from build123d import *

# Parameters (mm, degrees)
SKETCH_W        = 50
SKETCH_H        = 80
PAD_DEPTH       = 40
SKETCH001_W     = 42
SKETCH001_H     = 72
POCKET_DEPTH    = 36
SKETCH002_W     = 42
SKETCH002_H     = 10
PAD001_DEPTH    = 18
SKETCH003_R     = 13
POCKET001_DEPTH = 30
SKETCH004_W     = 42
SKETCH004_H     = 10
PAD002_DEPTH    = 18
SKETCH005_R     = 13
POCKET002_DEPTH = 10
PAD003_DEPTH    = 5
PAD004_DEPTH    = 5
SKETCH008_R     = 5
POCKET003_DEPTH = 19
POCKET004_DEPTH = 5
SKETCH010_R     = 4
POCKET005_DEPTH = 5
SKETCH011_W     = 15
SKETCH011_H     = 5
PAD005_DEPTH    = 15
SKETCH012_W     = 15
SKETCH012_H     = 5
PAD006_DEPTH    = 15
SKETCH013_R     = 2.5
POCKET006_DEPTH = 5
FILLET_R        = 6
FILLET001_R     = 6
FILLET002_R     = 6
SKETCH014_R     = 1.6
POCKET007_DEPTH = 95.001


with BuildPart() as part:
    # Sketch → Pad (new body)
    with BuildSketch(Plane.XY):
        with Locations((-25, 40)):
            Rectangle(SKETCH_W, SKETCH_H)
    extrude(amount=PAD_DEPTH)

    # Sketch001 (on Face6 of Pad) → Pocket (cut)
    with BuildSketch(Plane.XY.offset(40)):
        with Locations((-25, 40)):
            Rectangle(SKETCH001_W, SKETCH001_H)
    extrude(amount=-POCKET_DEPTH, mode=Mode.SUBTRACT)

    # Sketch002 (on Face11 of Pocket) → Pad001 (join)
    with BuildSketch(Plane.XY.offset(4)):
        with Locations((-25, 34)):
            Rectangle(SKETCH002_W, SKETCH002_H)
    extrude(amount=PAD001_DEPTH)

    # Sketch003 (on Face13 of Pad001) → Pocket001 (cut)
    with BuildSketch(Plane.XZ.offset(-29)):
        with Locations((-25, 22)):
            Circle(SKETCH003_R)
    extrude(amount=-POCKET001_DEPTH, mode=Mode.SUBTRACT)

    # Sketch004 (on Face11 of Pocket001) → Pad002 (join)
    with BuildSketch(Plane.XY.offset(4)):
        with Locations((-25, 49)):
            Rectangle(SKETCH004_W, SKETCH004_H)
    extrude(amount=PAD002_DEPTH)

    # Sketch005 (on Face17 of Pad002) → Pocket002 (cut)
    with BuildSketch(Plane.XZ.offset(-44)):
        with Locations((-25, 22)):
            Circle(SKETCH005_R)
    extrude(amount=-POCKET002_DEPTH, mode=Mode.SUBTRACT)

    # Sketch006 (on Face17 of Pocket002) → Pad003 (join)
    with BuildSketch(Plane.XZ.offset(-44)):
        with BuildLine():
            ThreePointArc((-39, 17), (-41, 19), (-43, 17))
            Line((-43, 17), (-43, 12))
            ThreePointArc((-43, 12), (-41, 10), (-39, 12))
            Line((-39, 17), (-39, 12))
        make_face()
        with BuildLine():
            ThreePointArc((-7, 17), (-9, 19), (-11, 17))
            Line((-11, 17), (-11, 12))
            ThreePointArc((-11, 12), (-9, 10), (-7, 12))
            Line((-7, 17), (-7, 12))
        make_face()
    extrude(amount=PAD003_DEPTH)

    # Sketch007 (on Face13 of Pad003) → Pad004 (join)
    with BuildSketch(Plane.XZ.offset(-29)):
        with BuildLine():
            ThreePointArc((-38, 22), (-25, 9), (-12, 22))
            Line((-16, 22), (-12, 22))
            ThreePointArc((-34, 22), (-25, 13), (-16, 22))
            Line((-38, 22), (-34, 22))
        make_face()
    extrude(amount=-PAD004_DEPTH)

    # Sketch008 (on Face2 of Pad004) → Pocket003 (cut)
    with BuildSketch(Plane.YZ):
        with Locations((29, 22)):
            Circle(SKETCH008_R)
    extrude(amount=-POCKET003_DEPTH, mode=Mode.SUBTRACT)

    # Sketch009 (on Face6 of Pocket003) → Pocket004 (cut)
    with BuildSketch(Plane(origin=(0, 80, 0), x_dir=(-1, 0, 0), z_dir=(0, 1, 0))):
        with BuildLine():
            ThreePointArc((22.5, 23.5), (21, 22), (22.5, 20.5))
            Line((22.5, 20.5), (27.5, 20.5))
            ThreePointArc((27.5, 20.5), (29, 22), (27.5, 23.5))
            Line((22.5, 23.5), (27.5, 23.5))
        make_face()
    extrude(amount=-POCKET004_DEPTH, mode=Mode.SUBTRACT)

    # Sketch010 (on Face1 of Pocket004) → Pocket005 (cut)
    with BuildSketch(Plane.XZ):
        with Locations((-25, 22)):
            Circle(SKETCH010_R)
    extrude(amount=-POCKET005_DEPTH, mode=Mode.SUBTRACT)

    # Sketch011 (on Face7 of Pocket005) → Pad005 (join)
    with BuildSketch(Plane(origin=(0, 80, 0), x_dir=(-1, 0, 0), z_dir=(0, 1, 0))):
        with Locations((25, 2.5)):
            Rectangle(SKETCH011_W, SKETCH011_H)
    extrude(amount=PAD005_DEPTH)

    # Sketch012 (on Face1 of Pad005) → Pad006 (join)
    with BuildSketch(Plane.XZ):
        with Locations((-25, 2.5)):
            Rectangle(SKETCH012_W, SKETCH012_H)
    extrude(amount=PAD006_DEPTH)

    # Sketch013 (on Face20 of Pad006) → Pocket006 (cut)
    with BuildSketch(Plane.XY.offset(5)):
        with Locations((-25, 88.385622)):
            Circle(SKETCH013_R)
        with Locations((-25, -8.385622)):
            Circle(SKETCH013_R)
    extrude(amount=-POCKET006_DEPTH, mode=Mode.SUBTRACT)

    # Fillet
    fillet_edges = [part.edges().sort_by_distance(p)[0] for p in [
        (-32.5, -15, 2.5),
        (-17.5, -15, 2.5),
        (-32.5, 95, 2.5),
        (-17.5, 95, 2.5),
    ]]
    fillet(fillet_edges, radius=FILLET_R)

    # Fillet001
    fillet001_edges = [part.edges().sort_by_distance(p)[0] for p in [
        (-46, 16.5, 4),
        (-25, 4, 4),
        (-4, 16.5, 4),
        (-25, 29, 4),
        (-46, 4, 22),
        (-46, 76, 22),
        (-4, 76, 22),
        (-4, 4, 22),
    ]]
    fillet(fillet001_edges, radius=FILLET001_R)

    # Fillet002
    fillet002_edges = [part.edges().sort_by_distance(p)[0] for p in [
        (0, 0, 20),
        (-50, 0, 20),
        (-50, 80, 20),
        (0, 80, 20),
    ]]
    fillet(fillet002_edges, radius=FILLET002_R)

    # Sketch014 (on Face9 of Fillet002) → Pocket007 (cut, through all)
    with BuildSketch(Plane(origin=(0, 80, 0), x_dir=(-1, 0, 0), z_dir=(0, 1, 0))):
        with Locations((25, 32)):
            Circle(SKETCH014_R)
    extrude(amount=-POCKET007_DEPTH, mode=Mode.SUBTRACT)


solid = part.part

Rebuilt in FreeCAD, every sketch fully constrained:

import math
import FreeCAD as App
import Part
import Sketcher

V = App.Vector


def edges_at(feature, points):
    """Names of the edges that pass closest to the given points."""
    edges = feature.Shape.Edges
    near = lambda p: min(range(len(edges)), key=lambda i: edges[i].distToShape(Part.Vertex(*p))[0])
    return sorted({f"Edge{near(p) + 1}" for p in points})

doc = App.newDocument("Part")
body = doc.addObject("PartDesign::Body", "Body")

# Sketch on XY plane
sketch1 = doc.addObject("Sketcher::SketchObject", "Sketch")
body.addObject(sketch1)
sketch1.AttachmentSupport = (doc.XY_Plane, [""])
sketch1.MapMode = "FlatFace"
sketch1.addGeometry([
    Part.LineSegment(V(-50, 80, 0), V(-50, 0, 0)),
    Part.LineSegment(V(-50, 0, 0), V(0, 0, 0)),
    Part.LineSegment(V(0, 0, 0), V(0, 80, 0)),
    Part.LineSegment(V(0, 80, 0), V(-50, 80, 0)),
], False)
sketch1.addConstraint([
    Sketcher.Constraint("Coincident", 0, 2, 1, 1),
    Sketcher.Constraint("Coincident", 1, 2, 2, 1),
    Sketcher.Constraint("Coincident", 2, 2, 3, 1),
    Sketcher.Constraint("Coincident", 3, 2, 0, 1),
    Sketcher.Constraint("Vertical", 0),
    Sketcher.Constraint("Horizontal", 1),
    Sketcher.Constraint("Vertical", 2),
    Sketcher.Constraint("Horizontal", 3),
    Sketcher.Constraint("Coincident", 1, 2, -1, 1),
    Sketcher.Constraint("DistanceX", 1, 1, 1, 2, 50.0),
    Sketcher.Constraint("DistanceY", 0, 2, 0, 1, 80.0),
])
pad1 = doc.addObject("PartDesign::Pad", "Pad")
body.addObject(pad1)
pad1.Profile = sketch1
pad1.Length = 40

# Sketch on XY plane
sketch2 = doc.addObject("Sketcher::SketchObject", "Sketch001")
body.addObject(sketch2)
sketch2.AttachmentSupport = (doc.XY_Plane, [""])
sketch2.MapMode = "FlatFace"
sketch2.AttachmentOffset = App.Placement(V(0, 0, 40), App.Rotation())
sketch2.addGeometry([
    Part.LineSegment(V(-46, 76, 0), V(-46, 4, 0)),
    Part.LineSegment(V(-46, 4, 0), V(-4, 4, 0)),
    Part.LineSegment(V(-4, 4, 0), V(-4, 76, 0)),
    Part.LineSegment(V(-4, 76, 0), V(-46, 76, 0)),
], False)
sketch2.addConstraint([
    Sketcher.Constraint("Coincident", 0, 2, 1, 1),
    Sketcher.Constraint("Coincident", 1, 2, 2, 1),
    Sketcher.Constraint("Coincident", 2, 2, 3, 1),
    Sketcher.Constraint("Coincident", 3, 2, 0, 1),
    Sketcher.Constraint("Vertical", 0),
    Sketcher.Constraint("Horizontal", 1),
    Sketcher.Constraint("Vertical", 2),
    Sketcher.Constraint("Horizontal", 3),
    Sketcher.Constraint("DistanceX", 1, 1, 1, 2, 42.0),
    Sketcher.Constraint("DistanceY", 0, 2, 0, 1, 72.0),
    Sketcher.Constraint("DistanceX", 0, 2, -1, 1, 46.0),
    Sketcher.Constraint("DistanceY", -1, 1, 0, 2, 4.0),
])
pocket1 = doc.addObject("PartDesign::Pocket", "Pocket")
body.addObject(pocket1)
pocket1.Profile = sketch2
pocket1.Length = 36

# Sketch on XY plane
sketch3 = doc.addObject("Sketcher::SketchObject", "Sketch002")
body.addObject(sketch3)
sketch3.AttachmentSupport = (doc.XY_Plane, [""])
sketch3.MapMode = "FlatFace"
sketch3.AttachmentOffset = App.Placement(V(0, 0, 4), App.Rotation())
sketch3.addGeometry([
    Part.LineSegment(V(-46, 39, 0), V(-46, 29, 0)),
    Part.LineSegment(V(-46, 29, 0), V(-4, 29, 0)),
    Part.LineSegment(V(-4, 29, 0), V(-4, 39, 0)),
    Part.LineSegment(V(-4, 39, 0), V(-46, 39, 0)),
], False)
sketch3.addConstraint([
    Sketcher.Constraint("Coincident", 0, 2, 1, 1),
    Sketcher.Constraint("Coincident", 1, 2, 2, 1),
    Sketcher.Constraint("Coincident", 2, 2, 3, 1),
    Sketcher.Constraint("Coincident", 3, 2, 0, 1),
    Sketcher.Constraint("Vertical", 0),
    Sketcher.Constraint("Horizontal", 1),
    Sketcher.Constraint("Vertical", 2),
    Sketcher.Constraint("Horizontal", 3),
    Sketcher.Constraint("DistanceX", 1, 1, 1, 2, 42.0),
    Sketcher.Constraint("DistanceY", 0, 2, 0, 1, 10.0),
    Sketcher.Constraint("DistanceX", 0, 2, -1, 1, 46.0),
    Sketcher.Constraint("DistanceY", -1, 1, 0, 2, 29.0),
])
pad2 = doc.addObject("PartDesign::Pad", "Pad001")
body.addObject(pad2)
pad2.Profile = sketch3
pad2.Length = 18

# Sketch on XZ plane
sketch4 = doc.addObject("Sketcher::SketchObject", "Sketch003")
body.addObject(sketch4)
sketch4.AttachmentSupport = (doc.XZ_Plane, [""])
sketch4.MapMode = "FlatFace"
sketch4.AttachmentOffset = App.Placement(V(0, 0, -29), App.Rotation())
sketch4.addGeometry(Part.Circle(V(-25, 22, 0), V(0, 0, 1), 13), False)
sketch4.addConstraint([
    Sketcher.Constraint("Diameter", 0, 26.0),
    Sketcher.Constraint("DistanceX", 0, 3, -1, 1, 25.0),
    Sketcher.Constraint("DistanceY", -1, 1, 0, 3, 22.0),
])
pocket2 = doc.addObject("PartDesign::Pocket", "Pocket001")
body.addObject(pocket2)
pocket2.Profile = sketch4
pocket2.Length = 30

# Sketch on XY plane
sketch5 = doc.addObject("Sketcher::SketchObject", "Sketch004")
body.addObject(sketch5)
sketch5.AttachmentSupport = (doc.XY_Plane, [""])
sketch5.MapMode = "FlatFace"
sketch5.AttachmentOffset = App.Placement(V(0, 0, 4), App.Rotation())
sketch5.addGeometry([
    Part.LineSegment(V(-46, 54, 0), V(-46, 44, 0)),
    Part.LineSegment(V(-46, 44, 0), V(-4, 44, 0)),
    Part.LineSegment(V(-4, 44, 0), V(-4, 54, 0)),
    Part.LineSegment(V(-4, 54, 0), V(-46, 54, 0)),
], False)
sketch5.addConstraint([
    Sketcher.Constraint("Coincident", 0, 2, 1, 1),
    Sketcher.Constraint("Coincident", 1, 2, 2, 1),
    Sketcher.Constraint("Coincident", 2, 2, 3, 1),
    Sketcher.Constraint("Coincident", 3, 2, 0, 1),
    Sketcher.Constraint("Vertical", 0),
    Sketcher.Constraint("Horizontal", 1),
    Sketcher.Constraint("Vertical", 2),
    Sketcher.Constraint("Horizontal", 3),
    Sketcher.Constraint("DistanceX", 1, 1, 1, 2, 42.0),
    Sketcher.Constraint("DistanceY", 0, 2, 0, 1, 10.0),
    Sketcher.Constraint("DistanceX", 0, 2, -1, 1, 46.0),
    Sketcher.Constraint("DistanceY", -1, 1, 0, 2, 44.0),
])
pad3 = doc.addObject("PartDesign::Pad", "Pad002")
body.addObject(pad3)
pad3.Profile = sketch5
pad3.Length = 18

# Sketch on XZ plane
sketch6 = doc.addObject("Sketcher::SketchObject", "Sketch005")
body.addObject(sketch6)
sketch6.AttachmentSupport = (doc.XZ_Plane, [""])
sketch6.MapMode = "FlatFace"
sketch6.AttachmentOffset = App.Placement(V(0, 0, -44), App.Rotation())
sketch6.addGeometry(Part.Circle(V(-25, 22, 0), V(0, 0, 1), 13), False)
sketch6.addConstraint([
    Sketcher.Constraint("Diameter", 0, 26.0),
    Sketcher.Constraint("DistanceX", 0, 3, -1, 1, 25.0),
    Sketcher.Constraint("DistanceY", -1, 1, 0, 3, 22.0),
])
pocket3 = doc.addObject("PartDesign::Pocket", "Pocket002")
body.addObject(pocket3)
pocket3.Profile = sketch6
pocket3.Length = 10

# Sketch on XZ plane
sketch7 = doc.addObject("Sketcher::SketchObject", "Sketch006")
body.addObject(sketch7)
sketch7.AttachmentSupport = (doc.XZ_Plane, [""])
sketch7.MapMode = "FlatFace"
sketch7.AttachmentOffset = App.Placement(V(0, 0, -44), App.Rotation())
sketch7.addGeometry([
    Part.ArcOfCircle(Part.Circle(V(-41, 17, 0), V(0, 0, 1), 2), math.radians(0), math.radians(180)),  # 0
    Part.LineSegment(V(-43, 17, 0), V(-43, 12, 0)),  # 1
    Part.ArcOfCircle(Part.Circle(V(-41, 12, 0), V(0, 0, 1), 2), math.radians(180), math.radians(360)),  # 2
    Part.LineSegment(V(-39, 12, 0), V(-39, 17, 0)),  # 3
    Part.ArcOfCircle(Part.Circle(V(-9, 17, 0), V(0, 0, 1), 2), math.radians(0), math.radians(180)),  # 4
    Part.LineSegment(V(-11, 17, 0), V(-11, 12, 0)),  # 5
    Part.ArcOfCircle(Part.Circle(V(-9, 12, 0), V(0, 0, 1), 2), math.radians(180), math.radians(360)),  # 6
    Part.LineSegment(V(-7, 12, 0), V(-7, 17, 0)),  # 7
], False)
sketch7.addConstraint([
    Sketcher.Constraint("Tangent", 0, 2, 1, 1),
    Sketcher.Constraint("Tangent", 1, 2, 2, 1),
    Sketcher.Constraint("Tangent", 2, 2, 3, 1),
    Sketcher.Constraint("Tangent", 3, 2, 0, 1),
    Sketcher.Constraint("Tangent", 4, 2, 5, 1),
    Sketcher.Constraint("Tangent", 5, 2, 6, 1),
    Sketcher.Constraint("Tangent", 6, 2, 7, 1),
    Sketcher.Constraint("Tangent", 7, 2, 4, 1),
    Sketcher.Constraint("Vertical", 1),
    Sketcher.Constraint("Vertical", 3),
    Sketcher.Constraint("Vertical", 5),
    Sketcher.Constraint("Vertical", 7),
    Sketcher.Constraint("Equal", 2, 4),
    Sketcher.Constraint("Horizontal", 0, 3, 4, 3),
    Sketcher.Constraint("Horizontal", 2, 3, 6, 3),
    Sketcher.Constraint("Radius", 0, 2.0),
    Sketcher.Constraint("DistanceY", 1, 2, 1, 1, 5.0),
    Sketcher.Constraint("DistanceX", 0, 3, -1, 1, 41.0),
    Sketcher.Constraint("DistanceY", -1, 1, 0, 3, 17.0),
    Sketcher.Constraint("DistanceX", 4, 3, -1, 1, 9.0),
])
pad4 = doc.addObject("PartDesign::Pad", "Pad003")
body.addObject(pad4)
pad4.Profile = sketch7
pad4.Length = 5

# Sketch on XZ plane
sketch8 = doc.addObject("Sketcher::SketchObject", "Sketch007")
body.addObject(sketch8)
sketch8.AttachmentSupport = (doc.XZ_Plane, [""])
sketch8.MapMode = "FlatFace"
sketch8.AttachmentOffset = App.Placement(V(0, 0, -29), App.Rotation())
sketch8.addGeometry([
    Part.ArcOfCircle(Part.Circle(V(-25, 22, 0), V(0, 0, 1), 13), math.radians(180), math.radians(360)),
    Part.LineSegment(V(-12, 22, 0), V(-16, 22, 0)),
    Part.ArcOfCircle(Part.Circle(V(-25, 22, 0), V(0, 0, 1), 9), math.radians(180), math.radians(360)),
    Part.LineSegment(V(-34, 22, 0), V(-38, 22, 0)),
], False)
sketch8.addConstraint([
    Sketcher.Constraint("Coincident", 0, 2, 1, 1),
    Sketcher.Constraint("Coincident", 1, 2, 2, 2),
    Sketcher.Constraint("Coincident", 2, 1, 3, 1),
    Sketcher.Constraint("Coincident", 3, 2, 0, 1),
    Sketcher.Constraint("Horizontal", 1),
    Sketcher.Constraint("Horizontal", 3),
    Sketcher.Constraint("Coincident", 2, 3, 0, 3),
    Sketcher.Constraint("Horizontal", 2, 3, 0, 2),
    Sketcher.Constraint("Horizontal", 1, 2, 2, 1),
    Sketcher.Constraint("Radius", 0, 13.0),
    Sketcher.Constraint("Radius", 2, 9.0),
    Sketcher.Constraint("DistanceX", 0, 3, -1, 1, 25.0),
    Sketcher.Constraint("DistanceY", -1, 1, 0, 3, 22.0),
])
pad5 = doc.addObject("PartDesign::Pad", "Pad004")
body.addObject(pad5)
pad5.Profile = sketch8
pad5.Length = 5
pad5.Reversed = True

# Sketch on YZ plane
sketch9 = doc.addObject("Sketcher::SketchObject", "Sketch008")
body.addObject(sketch9)
sketch9.AttachmentSupport = (doc.YZ_Plane, [""])
sketch9.MapMode = "FlatFace"
sketch9.addGeometry(Part.Circle(V(29, 22, 0), V(0, 0, 1), 5), False)
sketch9.addConstraint([
    Sketcher.Constraint("Diameter", 0, 10.0),
    Sketcher.Constraint("DistanceX", -1, 1, 0, 3, 29.0),
    Sketcher.Constraint("DistanceY", -1, 1, 0, 3, 22.0),
])
pocket4 = doc.addObject("PartDesign::Pocket", "Pocket003")
body.addObject(pocket4)
pocket4.Profile = sketch9
pocket4.Length = 19

# Sketch on XZ plane
sketch10 = doc.addObject("Sketcher::SketchObject", "Sketch009")
body.addObject(sketch10)
sketch10.AttachmentSupport = (doc.XZ_Plane, [""])
sketch10.MapMode = "FlatFace"
sketch10.AttachmentOffset = App.Placement(V(0, 0, -80), App.Rotation())
sketch10.addGeometry([
    Part.ArcOfCircle(Part.Circle(V(-22.5, 22, 0), V(0, 0, 1), 1.5), math.radians(-90), math.radians(90)),
    Part.LineSegment(V(-22.5, 20.5, 0), V(-27.5, 20.5, 0)),
    Part.ArcOfCircle(Part.Circle(V(-27.5, 22, 0), V(0, 0, 1), 1.5), math.radians(90), math.radians(270)),
    Part.LineSegment(V(-27.5, 23.5, 0), V(-22.5, 23.5, 0)),
], False)
sketch10.addConstraint([
    Sketcher.Constraint("Tangent", 0, 1, 1, 1),
    Sketcher.Constraint("Tangent", 1, 2, 2, 2),
    Sketcher.Constraint("Tangent", 2, 1, 3, 1),
    Sketcher.Constraint("Tangent", 3, 2, 0, 2),
    Sketcher.Constraint("Horizontal", 1),
    Sketcher.Constraint("Horizontal", 3),
    Sketcher.Constraint("Radius", 0, 1.5),
    Sketcher.Constraint("DistanceX", 1, 2, 1, 1, 5.0),
    Sketcher.Constraint("DistanceY", -1, 1, 0, 3, 22.0),
    Sketcher.Constraint("DistanceX", 0, 3, -1, 1, 22.5),
])
pocket5 = doc.addObject("PartDesign::Pocket", "Pocket004")
body.addObject(pocket5)
pocket5.Profile = sketch10
pocket5.Length = 5
pocket5.Reversed = True

# Sketch on XZ plane
sketch11 = doc.addObject("Sketcher::SketchObject", "Sketch010")
body.addObject(sketch11)
sketch11.AttachmentSupport = (doc.XZ_Plane, [""])
sketch11.MapMode = "FlatFace"
sketch11.addGeometry(Part.Circle(V(-25, 22, 0), V(0, 0, 1), 4), False)
sketch11.addConstraint([
    Sketcher.Constraint("Diameter", 0, 8.0),
    Sketcher.Constraint("DistanceX", 0, 3, -1, 1, 25.0),
    Sketcher.Constraint("DistanceY", -1, 1, 0, 3, 22.0),
])
pocket6 = doc.addObject("PartDesign::Pocket", "Pocket005")
body.addObject(pocket6)
pocket6.Profile = sketch11
pocket6.Length = 5

# Sketch on XZ plane
sketch12 = doc.addObject("Sketcher::SketchObject", "Sketch011")
body.addObject(sketch12)
sketch12.AttachmentSupport = (doc.XZ_Plane, [""])
sketch12.MapMode = "FlatFace"
sketch12.AttachmentOffset = App.Placement(V(0, 0, -80), App.Rotation())
sketch12.addGeometry([
    Part.LineSegment(V(-18, 5, 0), V(-18, 0, 0)),
    Part.LineSegment(V(-18, 0, 0), V(-32, 0, 0)),
    Part.LineSegment(V(-32, 0, 0), V(-32, 5, 0)),
    Part.LineSegment(V(-32, 5, 0), V(-18, 5, 0)),
], False)
sketch12.addConstraint([
    Sketcher.Constraint("Coincident", 0, 2, 1, 1),
    Sketcher.Constraint("Coincident", 1, 2, 2, 1),
    Sketcher.Constraint("Coincident", 2, 2, 3, 1),
    Sketcher.Constraint("Coincident", 3, 2, 0, 1),
    Sketcher.Constraint("Vertical", 0),
    Sketcher.Constraint("Horizontal", 1),
    Sketcher.Constraint("Vertical", 2),
    Sketcher.Constraint("Horizontal", 3),
    Sketcher.Constraint("PointOnObject", 0, 2, -1),
    Sketcher.Constraint("DistanceX", 1, 2, 1, 1, 15.0),
    Sketcher.Constraint("DistanceY", 0, 2, 0, 1, 5.0),
    Sketcher.Constraint("DistanceX", 0, 2, -1, 1, 17.5),
])
pad6 = doc.addObject("PartDesign::Pad", "Pad005")
body.addObject(pad6)
pad6.Profile = sketch12
pad6.Length = 15
pad6.Reversed = True

# Sketch on XZ plane
sketch13 = doc.addObject("Sketcher::SketchObject", "Sketch012")
body.addObject(sketch13)
sketch13.AttachmentSupport = (doc.XZ_Plane, [""])
sketch13.MapMode = "FlatFace"
sketch13.addGeometry([
    Part.LineSegment(V(-32, 5, 0), V(-32, 0, 0)),
    Part.LineSegment(V(-32, 0, 0), V(-18, 0, 0)),
    Part.LineSegment(V(-18, 0, 0), V(-18, 5, 0)),
    Part.LineSegment(V(-18, 5, 0), V(-32, 5, 0)),
], False)
sketch13.addConstraint([
    Sketcher.Constraint("Coincident", 0, 2, 1, 1),
    Sketcher.Constraint("Coincident", 1, 2, 2, 1),
    Sketcher.Constraint("Coincident", 2, 2, 3, 1),
    Sketcher.Constraint("Coincident", 3, 2, 0, 1),
    Sketcher.Constraint("Vertical", 0),
    Sketcher.Constraint("Horizontal", 1),
    Sketcher.Constraint("Vertical", 2),
    Sketcher.Constraint("Horizontal", 3),
    Sketcher.Constraint("PointOnObject", 0, 2, -1),
    Sketcher.Constraint("DistanceX", 1, 1, 1, 2, 15.0),
    Sketcher.Constraint("DistanceY", 0, 2, 0, 1, 5.0),
    Sketcher.Constraint("DistanceX", 0, 2, -1, 1, 32.5),
])
pad7 = doc.addObject("PartDesign::Pad", "Pad006")
body.addObject(pad7)
pad7.Profile = sketch13
pad7.Length = 15

# Sketch on XY plane
sketch14 = doc.addObject("Sketcher::SketchObject", "Sketch013")
body.addObject(sketch14)
sketch14.AttachmentSupport = (doc.XY_Plane, [""])
sketch14.MapMode = "FlatFace"
sketch14.AttachmentOffset = App.Placement(V(0, 0, 5), App.Rotation())
sketch14.addGeometry([
    Part.Circle(V(-25, 88.4, 0), V(0, 0, 1), 2.5),
    Part.Circle(V(-25, -8.4, 0), V(0, 0, 1), 2.5),
], False)
sketch14.addConstraint([
    Sketcher.Constraint("Equal", 0, 1),
    Sketcher.Constraint("Vertical", 0, 3, 1, 3),
    Sketcher.Constraint("Diameter", 0, 5.0),
    Sketcher.Constraint("DistanceX", 0, 3, -1, 1, 25.0),
    Sketcher.Constraint("DistanceY", -1, 1, 0, 3, 88.385622),
    Sketcher.Constraint("DistanceY", 1, 3, -1, 1, 8.385622),
])
pocket7 = doc.addObject("PartDesign::Pocket", "Pocket006")
body.addObject(pocket7)
pocket7.Profile = sketch14
pocket7.Length = 5
doc.recompute()

fillet = doc.addObject("PartDesign::Fillet", "Fillet")
body.addObject(fillet)
fillet.Base = (pocket7, edges_at(pocket7, [
    (-32.5, -15, 2.5),
    (-17.5, -15, 2.5),
    (-32.5, 95, 2.5),
    (-17.5, 95, 2.5),
]))
fillet.Radius = 6
doc.recompute()

fillet2 = doc.addObject("PartDesign::Fillet", "Fillet001")
body.addObject(fillet2)
fillet2.Base = (fillet, edges_at(fillet, [
    (-46, 16.5, 4),
    (-25, 4, 4),
    (-4, 16.5, 4),
    (-25, 29, 4),
    (-46, 4, 22),
    (-46, 76, 22),
    (-4, 76, 22),
    (-4, 4, 22),
]))
fillet2.Radius = 6
doc.recompute()

fillet3 = doc.addObject("PartDesign::Fillet", "Fillet002")
body.addObject(fillet3)
fillet3.Base = (fillet2, edges_at(fillet2, [
    (0, 0, 20),
    (-50, 0, 20),
    (-50, 80, 20),
    (0, 80, 20),
]))
fillet3.Radius = 6

# Sketch on XZ plane
sketch15 = doc.addObject("Sketcher::SketchObject", "Sketch014")
body.addObject(sketch15)
sketch15.AttachmentSupport = (doc.XZ_Plane, [""])
sketch15.MapMode = "FlatFace"
sketch15.AttachmentOffset = App.Placement(V(0, 0, -80), App.Rotation())
sketch15.addGeometry(Part.Circle(V(-25, 32, 0), V(0, 0, 1), 1.6), False)
sketch15.addConstraint([
    Sketcher.Constraint("Diameter", 0, 3.2),
    Sketcher.Constraint("DistanceX", 0, 3, -1, 1, 25.0),
    Sketcher.Constraint("DistanceY", -1, 1, 0, 3, 32.0),
])
pocket8 = doc.addObject("PartDesign::Pocket", "Pocket007")
body.addObject(pocket8)
pocket8.Profile = sketch15
pocket8.Type = "ThroughAll"
pocket8.Reversed = True

doc.recompute()
